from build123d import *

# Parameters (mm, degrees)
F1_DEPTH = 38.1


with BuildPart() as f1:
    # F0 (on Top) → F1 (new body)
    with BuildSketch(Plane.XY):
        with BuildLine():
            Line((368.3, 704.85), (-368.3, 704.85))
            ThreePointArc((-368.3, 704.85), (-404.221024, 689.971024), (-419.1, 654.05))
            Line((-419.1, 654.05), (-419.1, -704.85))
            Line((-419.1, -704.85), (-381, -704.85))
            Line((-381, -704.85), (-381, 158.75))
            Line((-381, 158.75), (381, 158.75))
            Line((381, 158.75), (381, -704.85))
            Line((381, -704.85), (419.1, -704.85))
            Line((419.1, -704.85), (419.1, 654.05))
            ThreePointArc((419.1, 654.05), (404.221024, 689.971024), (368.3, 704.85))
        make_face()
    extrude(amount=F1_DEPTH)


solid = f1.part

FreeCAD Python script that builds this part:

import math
import FreeCAD as App
import Part
import Sketcher
from FreeCAD import Vector
Q = App.Units.Quantity

doc = App.newDocument("Part")
body = doc.addObject("PartDesign::Body", "Body")

sketch1 = body.newObject("Sketcher::SketchObject", "Sketch")
sketch1.AttachmentSupport = (doc.getObject("XY_Plane"), [""])
sketch1.MapMode = "FlatFace"
sketch1.addGeometry([
    Part.LineSegment(Vector(368, 705, 0), Vector(-368, 705, 0)),
    Part.ArcOfCircle(Part.Circle(Vector(-368, 654, 0), Vector(0, 0, 1), 51), math.radians(90), math.radians(180)),
    Part.LineSegment(Vector(-419, 654, 0), Vector(-419, -705, 0)),
    Part.LineSegment(Vector(-419, -705, 0), Vector(-381, -705, 0)),
    Part.LineSegment(Vector(-381, -705, 0), Vector(-381, 159, 0)),
    Part.LineSegment(Vector(-381, 159, 0), Vector(381, 159, 0)),
    Part.LineSegment(Vector(381, 159, 0), Vector(381, -705, 0)),
    Part.LineSegment(Vector(381, -705, 0), Vector(419, -705, 0)),
    Part.LineSegment(Vector(419, -705, 0), Vector(419, 654, 0)),
    Part.ArcOfCircle(Part.Circle(Vector(368, 654, 0), Vector(0, 0, 1), 51), math.radians(0), math.radians(90)),
], False)
sketch1.addConstraint([
    Sketcher.Constraint("Tangent", 0, 2, 1, 1),
    Sketcher.Constraint("Tangent", 1, 2, 2, 1),
    Sketcher.Constraint("Coincident", 2, 2, 3, 1),
    Sketcher.Constraint("Coincident", 3, 2, 4, 1),
    Sketcher.Constraint("Coincident", 4, 2, 5, 1),
    Sketcher.Constraint("Coincident", 5, 2, 6, 1),
    Sketcher.Constraint("Coincident", 6, 2, 7, 1),
    Sketcher.Constraint("Coincident", 7, 2, 8, 1),
    Sketcher.Constraint("Tangent", 8, 2, 9, 1),
    Sketcher.Constraint("Tangent", 9, 2, 0, 1),
    Sketcher.Constraint("Horizontal", 0),
    Sketcher.Constraint("Vertical", 2),
    Sketcher.Constraint("Horizontal", 3),
    Sketcher.Constraint("Vertical", 4),
    Sketcher.Constraint("Horizontal", 5),
    Sketcher.Constraint("Vertical", 6),
    Sketcher.Constraint("Horizontal", 7),
    Sketcher.Constraint("Vertical", 8),
    Sketcher.Constraint("Equal", 1, 9),
    Sketcher.Constraint("Symmetric", 3, 2, 6, 2, -2),
    Sketcher.Constraint("Equal", 3, 7),
    Sketcher.Constraint("Radius", 1, Q("2.0000001 in")),
    Sketcher.Constraint("DistanceX", 0, 2, 0, 1, Q("29 in")),
    Sketcher.Constraint("DistanceX", 5, 1, 5, 2, Q("30 in")),
    Sketcher.Constraint("DistanceY", 4, 1, 4, 2, Q("34 in")),
    Sketcher.Constraint("DistanceY", 2, 2, 2, 1, Q("53.5 in")),
    Sketcher.Constraint("DistanceY", -1, 1, 1, 3, Q("25.7499999 in")),
])
pad1 = body.newObject("PartDesign::Pad", "Pad")
pad1.Profile = sketch1
pad1.Length = Q("1.5 in")

doc.recompute()
